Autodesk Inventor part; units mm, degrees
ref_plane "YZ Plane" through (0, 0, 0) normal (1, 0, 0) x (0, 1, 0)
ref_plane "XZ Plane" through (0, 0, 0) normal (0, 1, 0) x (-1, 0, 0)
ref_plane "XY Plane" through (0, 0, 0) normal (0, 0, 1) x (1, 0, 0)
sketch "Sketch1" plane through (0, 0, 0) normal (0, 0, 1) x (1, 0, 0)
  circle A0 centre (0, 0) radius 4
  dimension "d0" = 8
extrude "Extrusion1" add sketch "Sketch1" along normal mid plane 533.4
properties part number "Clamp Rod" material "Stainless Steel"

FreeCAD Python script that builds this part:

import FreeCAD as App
import Part
import Sketcher

V = App.Vector
Q = App.Units.Quantity

doc = App.newDocument("Part")
params = doc.addObject("Spreadsheet::Sheet", "Params")
for row, (alias, value) in enumerate([
    ("sketch1_diameter", "8 mm"),
    ("pad1_length", "533.4 mm"),
], start=1):
    params.set(f"A{row}", alias)
    params.set(f"B{row}", "=" + value)
    params.setAlias(f"B{row}", alias)

body = doc.addObject("PartDesign::Body", "Body")

# Sketch on XY plane
sketch1 = doc.addObject("Sketcher::SketchObject", "Sketch")
body.addObject(sketch1)
sketch1.AttachmentSupport = (doc.XY_Plane, [""])
sketch1.MapMode = "FlatFace"
sketch1.addGeometry(Part.Circle(V(0, 0, 0), V(0, 0, 1), 4), False)
sketch1.addConstraint(Sketcher.Constraint("Coincident", 0, 3, -1, 1))
sketch1.addConstraint(Sketcher.Constraint("Diameter", 0, Q("8 mm")))
sketch1.setExpression("Constraints[1]", "Params.sketch1_diameter")
pad1 = doc.addObject("PartDesign::Pad", "Pad")
body.addObject(pad1)
pad1.Profile = sketch1
pad1.setExpression("Length", "Params.pad1_length")
pad1.Midplane = True

doc.recompute()
